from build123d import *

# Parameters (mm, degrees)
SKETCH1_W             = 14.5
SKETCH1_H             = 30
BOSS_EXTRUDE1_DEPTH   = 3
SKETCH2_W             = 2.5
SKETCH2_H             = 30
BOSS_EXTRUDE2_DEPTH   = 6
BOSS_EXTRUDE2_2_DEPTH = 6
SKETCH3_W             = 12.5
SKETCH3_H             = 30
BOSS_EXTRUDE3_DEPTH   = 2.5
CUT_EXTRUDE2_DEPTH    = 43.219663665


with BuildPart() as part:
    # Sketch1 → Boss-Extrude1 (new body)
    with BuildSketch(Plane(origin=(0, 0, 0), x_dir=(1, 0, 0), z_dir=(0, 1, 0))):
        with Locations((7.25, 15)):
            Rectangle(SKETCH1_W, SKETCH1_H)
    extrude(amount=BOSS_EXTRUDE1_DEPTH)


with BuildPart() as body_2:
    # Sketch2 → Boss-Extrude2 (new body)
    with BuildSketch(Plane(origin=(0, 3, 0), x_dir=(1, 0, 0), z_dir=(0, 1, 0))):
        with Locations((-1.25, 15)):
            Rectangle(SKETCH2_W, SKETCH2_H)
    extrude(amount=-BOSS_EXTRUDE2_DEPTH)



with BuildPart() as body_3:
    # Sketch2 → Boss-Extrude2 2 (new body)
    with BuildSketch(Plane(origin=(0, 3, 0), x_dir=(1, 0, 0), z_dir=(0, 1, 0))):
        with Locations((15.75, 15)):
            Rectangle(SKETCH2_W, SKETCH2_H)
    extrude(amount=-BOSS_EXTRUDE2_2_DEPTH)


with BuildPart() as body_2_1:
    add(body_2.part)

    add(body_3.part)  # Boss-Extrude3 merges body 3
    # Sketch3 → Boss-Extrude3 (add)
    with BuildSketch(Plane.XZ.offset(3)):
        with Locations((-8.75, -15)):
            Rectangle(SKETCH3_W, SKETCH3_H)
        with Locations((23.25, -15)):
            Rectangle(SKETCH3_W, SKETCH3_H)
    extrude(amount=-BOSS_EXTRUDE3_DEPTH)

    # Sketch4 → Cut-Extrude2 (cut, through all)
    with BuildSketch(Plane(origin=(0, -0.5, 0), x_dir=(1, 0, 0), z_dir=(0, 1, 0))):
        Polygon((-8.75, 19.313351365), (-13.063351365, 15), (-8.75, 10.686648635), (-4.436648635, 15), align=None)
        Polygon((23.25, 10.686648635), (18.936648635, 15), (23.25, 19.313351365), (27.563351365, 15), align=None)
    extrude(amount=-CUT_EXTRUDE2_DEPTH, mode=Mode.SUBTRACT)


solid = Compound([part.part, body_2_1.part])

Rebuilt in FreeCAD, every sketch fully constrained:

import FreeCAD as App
import Part
import Sketcher

doc = App.newDocument("Part")
body = doc.addObject("PartDesign::Body", "Body")

# Sketch on XZ plane
sketch1 = body.newObject("Sketcher::SketchObject", "Sketch")
sketch1.AttachmentSupport = (doc.getObject("XZ_Plane"), [""])
sketch1.MapMode = "FlatFace"
sketch1.addGeometry(Part.LineSegment(App.Vector(0, -30, 0), App.Vector(0, 0, 0)), False)
sketch1.addGeometry(Part.LineSegment(App.Vector(0, 0, 0), App.Vector(14, 0, 0)), False)
sketch1.addGeometry(Part.LineSegment(App.Vector(14, 0, 0), App.Vector(14, -30, 0)), False)
sketch1.addGeometry(Part.LineSegment(App.Vector(14, -30, 0), App.Vector(0, -30, 0)), False)
sketch1.addConstraint(Sketcher.Constraint("Coincident", 0, 2, 1, 1))
sketch1.addConstraint(Sketcher.Constraint("Coincident", 1, 2, 2, 1))
sketch1.addConstraint(Sketcher.Constraint("Coincident", 2, 2, 3, 1))
sketch1.addConstraint(Sketcher.Constraint("Coincident", 3, 2, 0, 1))
sketch1.addConstraint(Sketcher.Constraint("Vertical", 0))
sketch1.addConstraint(Sketcher.Constraint("Horizontal", 1))
sketch1.addConstraint(Sketcher.Constraint("Vertical", 2))
sketch1.addConstraint(Sketcher.Constraint("Horizontal", 3))
sketch1.addConstraint(Sketcher.Constraint("Coincident", 0, 2, -1, 1))
sketch1.addConstraint(Sketcher.Constraint("DistanceY", 0, 1, 0, 2, 30.0))
sketch1.addConstraint(Sketcher.Constraint("DistanceX", 1, 1, 1, 2, 14.5))
pad1 = body.newObject("PartDesign::Pad", "Pad")
pad1.Profile = sketch1
pad1.Length = 3
pad1.Reversed = True
body2 = doc.addObject("PartDesign::Body", "Body001")

# Sketch on XZ plane
sketch2 = body2.newObject("Sketcher::SketchObject", "Sketch001")
sketch2.AttachmentSupport = (doc.getObject("XZ_Plane001"), [""])
sketch2.MapMode = "FlatFace"
sketch2.AttachmentOffset = App.Placement(App.Vector(0, 0, -3), App.Rotation())
sketch2.addGeometry(Part.LineSegment(App.Vector(-2.5, -30, 0), App.Vector(-2.5, 0, 0)), False)
sketch2.addGeometry(Part.LineSegment(App.Vector(-2.5, 0, 0), App.Vector(0, 0, 0)), False)
sketch2.addGeometry(Part.LineSegment(App.Vector(0, 0, 0), App.Vector(0, -30, 0)), False)
sketch2.addGeometry(Part.LineSegment(App.Vector(0, -30, 0), App.Vector(-2.5, -30, 0)), False)
sketch2.addConstraint(Sketcher.Constraint("Coincident", 0, 2, 1, 1))
sketch2.addConstraint(Sketcher.Constraint("Coincident", 1, 2, 2, 1))
sketch2.addConstraint(Sketcher.Constraint("Coincident", 2, 2, 3, 1))
sketch2.addConstraint(Sketcher.Constraint("Coincident", 3, 2, 0, 1))
sketch2.addConstraint(Sketcher.Constraint("Vertical", 0))
sketch2.addConstraint(Sketcher.Constraint("Horizontal", 1))
sketch2.addConstraint(Sketcher.Constraint("Vertical", 2))
sketch2.addConstraint(Sketcher.Constraint("Horizontal", 3))
sketch2.addConstraint(Sketcher.Constraint("Coincident", 1, 2, -1, 1))
sketch2.addConstraint(Sketcher.Constraint("DistanceY", 0, 1, 0, 2, 30.0))
sketch2.addConstraint(Sketcher.Constraint("DistanceX", 1, 1, 1, 2, 2.5))
pad2 = body2.newObject("PartDesign::Pad", "Pad001")
pad2.Profile = sketch2
pad2.Length = 6
body3 = doc.addObject("PartDesign::Body", "Body002")

# Sketch on XZ plane
sketch3 = body3.newObject("Sketcher::SketchObject", "Sketch002")
sketch3.AttachmentSupport = (doc.getObject("XZ_Plane002"), [""])
sketch3.MapMode = "FlatFace"
sketch3.AttachmentOffset = App.Placement(App.Vector(0, 0, -3), App.Rotation())
sketch3.addGeometry(Part.LineSegment(App.Vector(14.5, -30, 0), App.Vector(14.5, 0, 0)), False)
sketch3.addGeometry(Part.LineSegment(App.Vector(14.5, 0, 0), App.Vector(17, 0, 0)), False)
sketch3.addGeometry(Part.LineSegment(App.Vector(17, 0, 0), App.Vector(17, -30, 0)), False)
sketch3.addGeometry(Part.LineSegment(App.Vector(17, -30, 0), App.Vector(14.5, -30, 0)), False)
sketch3.addConstraint(Sketcher.Constraint("Coincident", 0, 2, 1, 1))
sketch3.addConstraint(Sketcher.Constraint("Coincident", 1, 2, 2, 1))
sketch3.addConstraint(Sketcher.Constraint("Coincident", 2, 2, 3, 1))
sketch3.addConstraint(Sketcher.Constraint("Coincident", 3, 2, 0, 1))
sketch3.addConstraint(Sketcher.Constraint("Vertical", 0))
sketch3.addConstraint(Sketcher.Constraint("Horizontal", 1))
sketch3.addConstraint(Sketcher.Constraint("Vertical", 2))
sketch3.addConstraint(Sketcher.Constraint("Horizontal", 3))
sketch3.addConstraint(Sketcher.Constraint("PointOnObject", 0, 2, -1))
sketch3.addConstraint(Sketcher.Constraint("DistanceY", 0, 1, 0, 2, 30.0))
sketch3.addConstraint(Sketcher.Constraint("DistanceX", 1, 1, 1, 2, 2.5))
sketch3.addConstraint(Sketcher.Constraint("DistanceX", -1, 1, 1, 2, 17.0))
pad3 = body3.newObject("PartDesign::Pad", "Pad002")
pad3.Profile = sketch3
pad3.Length = 6
body2.AllowCompound = True
doc.recompute()

boolean = body2.newObject("PartDesign::Boolean", "Boolean")
boolean.Type = "Fuse"
boolean.addObjects([body3])

# Sketch on XZ plane
sketch4 = body2.newObject("Sketcher::SketchObject", "Sketch003")
sketch4.AttachmentSupport = (doc.getObject("XZ_Plane001"), [""])
sketch4.MapMode = "FlatFace"
sketch4.AttachmentOffset = App.Placement(App.Vector(0, 0, 3), App.Rotation())
sketch4.addGeometry(Part.LineSegment(App.Vector(-15, 0, 0), App.Vector(-15, -30, 0)), False)
sketch4.addGeometry(Part.LineSegment(App.Vector(-15, -30, 0), App.Vector(-2, -30, 0)), False)
sketch4.addGeometry(Part.LineSegment(App.Vector(-2, -30, 0), App.Vector(-2, 0, 0)), False)
sketch4.addGeometry(Part.LineSegment(App.Vector(-2, 0, 0), App.Vector(-15, 0, 0)), False)
sketch4.addGeometry(Part.LineSegment(App.Vector(17, 0, 0), App.Vector(17, -30, 0)), False)
sketch4.addGeometry(Part.LineSegment(App.Vector(17, -30, 0), App.Vector(30, -30, 0)), False)
sketch4.addGeometry(Part.LineSegment(App.Vector(30, -30, 0), App.Vector(30, 0, 0)), False)
sketch4.addGeometry(Part.LineSegment(App.Vector(30, 0, 0), App.Vector(17, 0, 0)), False)
sketch4.addConstraint(Sketcher.Constraint("Coincident", 0, 2, 1, 1))
sketch4.addConstraint(Sketcher.Constraint("Coincident", 1, 2, 2, 1))
sketch4.addConstraint(Sketcher.Constraint("Coincident", 2, 2, 3, 1))
sketch4.addConstraint(Sketcher.Constraint("Coincident", 3, 2, 0, 1))
sketch4.addConstraint(Sketcher.Constraint("Coincident", 4, 2, 5, 1))
sketch4.addConstraint(Sketcher.Constraint("Coincident", 5, 2, 6, 1))
sketch4.addConstraint(Sketcher.Constraint("Coincident", 6, 2, 7, 1))
sketch4.addConstraint(Sketcher.Constraint("Coincident", 7, 2, 4, 1))
sketch4.addConstraint(Sketcher.Constraint("Vertical", 0))
sketch4.addConstraint(Sketcher.Constraint("Horizontal", 1))
sketch4.addConstraint(Sketcher.Constraint("Vertical", 2))
sketch4.addConstraint(Sketcher.Constraint("Horizontal", 3))
sketch4.addConstraint(Sketcher.Constraint("Vertical", 4))
sketch4.addConstraint(Sketcher.Constraint("Horizontal", 5))
sketch4.addConstraint(Sketcher.Constraint("Vertical", 6))
sketch4.addConstraint(Sketcher.Constraint("Horizontal", 7))
sketch4.addConstraint(Sketcher.Constraint("PointOnObject", 2, 2, -1))
sketch4.addConstraint(Sketcher.Constraint("PointOnObject", 6, 2, -1))
sketch4.addConstraint(Sketcher.Constraint("Horizontal", 1, 2, 4, 2))
sketch4.addConstraint(Sketcher.Constraint("Equal", 3, 5))
sketch4.addConstraint(Sketcher.Constraint("DistanceY", 0, 2, 0, 1, 30.0))
sketch4.addConstraint(Sketcher.Constraint("DistanceX", 1, 1, 1, 2, 12.5))
sketch4.addConstraint(Sketcher.Constraint("DistanceX", 0, 2, -1, 1, 15.0))
sketch4.addConstraint(Sketcher.Constraint("DistanceX", -1, 1, 4, 2, 17.0))
pad4 = body2.newObject("PartDesign::Pad", "Pad003")
pad4.Profile = sketch4
pad4.Length = 2.5
pad4.Reversed = True

# Sketch on XZ plane
sketch5 = body2.newObject("Sketcher::SketchObject", "Sketch004")
sketch5.AttachmentSupport = (doc.getObject("XZ_Plane001"), [""])
sketch5.MapMode = "FlatFace"
sketch5.AttachmentOffset = App.Placement(App.Vector(0, 0, 0.5), App.Rotation())
sketch5.addGeometry(Part.LineSegment(App.Vector(-9, -19, 0), App.Vector(-13, -15, 0)), False)
sketch5.addGeometry(Part.LineSegment(App.Vector(-13, -15, 0), App.Vector(-9, -11, 0)), False)
sketch5.addGeometry(Part.LineSegment(App.Vector(-9, -11, 0), App.Vector(-4, -15, 0)), False)
sketch5.addGeometry(Part.LineSegment(App.Vector(-4, -15, 0), App.Vector(-9, -19, 0)), False)
sketch5.addGeometry(Part.LineSegment(App.Vector(19, -15, 0), App.Vector(23, -11, 0)), False)
sketch5.addGeometry(Part.LineSegment(App.Vector(23, -11, 0), App.Vector(28, -15, 0)), False)
sketch5.addGeometry(Part.LineSegment(App.Vector(28, -15, 0), App.Vector(23, -19, 0)), False)
sketch5.addGeometry(Part.LineSegment(App.Vector(23, -19, 0), App.Vector(19, -15, 0)), False)
sketch5.addConstraint(Sketcher.Constraint("Coincident", 0, 2, 1, 1))
sketch5.addConstraint(Sketcher.Constraint("Coincident", 1, 2, 2, 1))
sketch5.addConstraint(Sketcher.Constraint("Coincident", 2, 2, 3, 1))
sketch5.addConstraint(Sketcher.Constraint("Coincident", 3, 2, 0, 1))
sketch5.addConstraint(Sketcher.Constraint("Coincident", 4, 2, 5, 1))
sketch5.addConstraint(Sketcher.Constraint("Coincident", 5, 2, 6, 1))
sketch5.addConstraint(Sketcher.Constraint("Coincident", 6, 2, 7, 1))
sketch5.addConstraint(Sketcher.Constraint("Coincident", 7, 2, 4, 1))
sketch5.addConstraint(Sketcher.Constraint("Perpendicular", 0, 1))
sketch5.addConstraint(Sketcher.Constraint("Perpendicular", 1, 2))
sketch5.addConstraint(Sketcher.Constraint("Perpendicular", 2, 3))
sketch5.addConstraint(Sketcher.Constraint("Parallel", 3, 4))
sketch5.addConstraint(Sketcher.Constraint("Perpendicular", 4, 5))
sketch5.addConstraint(Sketcher.Constraint("Perpendicular", 5, 6))
sketch5.addConstraint(Sketcher.Constraint("Perpendicular", 6, 7))
sketch5.addConstraint(Sketcher.Constraint("Horizontal", 0, 2, 2, 2))
sketch5.addConstraint(Sketcher.Constraint("Horizontal", 1, 2, 4, 2))
sketch5.addConstraint(Sketcher.Constraint("Horizontal", 2, 2, 5, 2))
sketch5.addConstraint(Sketcher.Constraint("Horizontal", 3, 2, 6, 2))
sketch5.addConstraint(Sketcher.Constraint("Vertical", 1, 2, 3, 2))
sketch5.addConstraint(Sketcher.Constraint("DistanceY", 0, 2, -1, 1, 15.0))
sketch5.addConstraint(Sketcher.Constraint("DistanceX", 1, 2, 4, 2, 32.0))
sketch5.addConstraint(Sketcher.Constraint("Distance", 0, 6.1))
sketch5.addConstraint(Sketcher.Constraint("DistanceX", 1, 2, -1, 1, 8.75))
pocket1 = body2.newObject("PartDesign::Pocket", "Pocket")
pocket1.Profile = sketch5
pocket1.Type = "ThroughAll"
pocket1.Reversed = True

doc.recompute()
